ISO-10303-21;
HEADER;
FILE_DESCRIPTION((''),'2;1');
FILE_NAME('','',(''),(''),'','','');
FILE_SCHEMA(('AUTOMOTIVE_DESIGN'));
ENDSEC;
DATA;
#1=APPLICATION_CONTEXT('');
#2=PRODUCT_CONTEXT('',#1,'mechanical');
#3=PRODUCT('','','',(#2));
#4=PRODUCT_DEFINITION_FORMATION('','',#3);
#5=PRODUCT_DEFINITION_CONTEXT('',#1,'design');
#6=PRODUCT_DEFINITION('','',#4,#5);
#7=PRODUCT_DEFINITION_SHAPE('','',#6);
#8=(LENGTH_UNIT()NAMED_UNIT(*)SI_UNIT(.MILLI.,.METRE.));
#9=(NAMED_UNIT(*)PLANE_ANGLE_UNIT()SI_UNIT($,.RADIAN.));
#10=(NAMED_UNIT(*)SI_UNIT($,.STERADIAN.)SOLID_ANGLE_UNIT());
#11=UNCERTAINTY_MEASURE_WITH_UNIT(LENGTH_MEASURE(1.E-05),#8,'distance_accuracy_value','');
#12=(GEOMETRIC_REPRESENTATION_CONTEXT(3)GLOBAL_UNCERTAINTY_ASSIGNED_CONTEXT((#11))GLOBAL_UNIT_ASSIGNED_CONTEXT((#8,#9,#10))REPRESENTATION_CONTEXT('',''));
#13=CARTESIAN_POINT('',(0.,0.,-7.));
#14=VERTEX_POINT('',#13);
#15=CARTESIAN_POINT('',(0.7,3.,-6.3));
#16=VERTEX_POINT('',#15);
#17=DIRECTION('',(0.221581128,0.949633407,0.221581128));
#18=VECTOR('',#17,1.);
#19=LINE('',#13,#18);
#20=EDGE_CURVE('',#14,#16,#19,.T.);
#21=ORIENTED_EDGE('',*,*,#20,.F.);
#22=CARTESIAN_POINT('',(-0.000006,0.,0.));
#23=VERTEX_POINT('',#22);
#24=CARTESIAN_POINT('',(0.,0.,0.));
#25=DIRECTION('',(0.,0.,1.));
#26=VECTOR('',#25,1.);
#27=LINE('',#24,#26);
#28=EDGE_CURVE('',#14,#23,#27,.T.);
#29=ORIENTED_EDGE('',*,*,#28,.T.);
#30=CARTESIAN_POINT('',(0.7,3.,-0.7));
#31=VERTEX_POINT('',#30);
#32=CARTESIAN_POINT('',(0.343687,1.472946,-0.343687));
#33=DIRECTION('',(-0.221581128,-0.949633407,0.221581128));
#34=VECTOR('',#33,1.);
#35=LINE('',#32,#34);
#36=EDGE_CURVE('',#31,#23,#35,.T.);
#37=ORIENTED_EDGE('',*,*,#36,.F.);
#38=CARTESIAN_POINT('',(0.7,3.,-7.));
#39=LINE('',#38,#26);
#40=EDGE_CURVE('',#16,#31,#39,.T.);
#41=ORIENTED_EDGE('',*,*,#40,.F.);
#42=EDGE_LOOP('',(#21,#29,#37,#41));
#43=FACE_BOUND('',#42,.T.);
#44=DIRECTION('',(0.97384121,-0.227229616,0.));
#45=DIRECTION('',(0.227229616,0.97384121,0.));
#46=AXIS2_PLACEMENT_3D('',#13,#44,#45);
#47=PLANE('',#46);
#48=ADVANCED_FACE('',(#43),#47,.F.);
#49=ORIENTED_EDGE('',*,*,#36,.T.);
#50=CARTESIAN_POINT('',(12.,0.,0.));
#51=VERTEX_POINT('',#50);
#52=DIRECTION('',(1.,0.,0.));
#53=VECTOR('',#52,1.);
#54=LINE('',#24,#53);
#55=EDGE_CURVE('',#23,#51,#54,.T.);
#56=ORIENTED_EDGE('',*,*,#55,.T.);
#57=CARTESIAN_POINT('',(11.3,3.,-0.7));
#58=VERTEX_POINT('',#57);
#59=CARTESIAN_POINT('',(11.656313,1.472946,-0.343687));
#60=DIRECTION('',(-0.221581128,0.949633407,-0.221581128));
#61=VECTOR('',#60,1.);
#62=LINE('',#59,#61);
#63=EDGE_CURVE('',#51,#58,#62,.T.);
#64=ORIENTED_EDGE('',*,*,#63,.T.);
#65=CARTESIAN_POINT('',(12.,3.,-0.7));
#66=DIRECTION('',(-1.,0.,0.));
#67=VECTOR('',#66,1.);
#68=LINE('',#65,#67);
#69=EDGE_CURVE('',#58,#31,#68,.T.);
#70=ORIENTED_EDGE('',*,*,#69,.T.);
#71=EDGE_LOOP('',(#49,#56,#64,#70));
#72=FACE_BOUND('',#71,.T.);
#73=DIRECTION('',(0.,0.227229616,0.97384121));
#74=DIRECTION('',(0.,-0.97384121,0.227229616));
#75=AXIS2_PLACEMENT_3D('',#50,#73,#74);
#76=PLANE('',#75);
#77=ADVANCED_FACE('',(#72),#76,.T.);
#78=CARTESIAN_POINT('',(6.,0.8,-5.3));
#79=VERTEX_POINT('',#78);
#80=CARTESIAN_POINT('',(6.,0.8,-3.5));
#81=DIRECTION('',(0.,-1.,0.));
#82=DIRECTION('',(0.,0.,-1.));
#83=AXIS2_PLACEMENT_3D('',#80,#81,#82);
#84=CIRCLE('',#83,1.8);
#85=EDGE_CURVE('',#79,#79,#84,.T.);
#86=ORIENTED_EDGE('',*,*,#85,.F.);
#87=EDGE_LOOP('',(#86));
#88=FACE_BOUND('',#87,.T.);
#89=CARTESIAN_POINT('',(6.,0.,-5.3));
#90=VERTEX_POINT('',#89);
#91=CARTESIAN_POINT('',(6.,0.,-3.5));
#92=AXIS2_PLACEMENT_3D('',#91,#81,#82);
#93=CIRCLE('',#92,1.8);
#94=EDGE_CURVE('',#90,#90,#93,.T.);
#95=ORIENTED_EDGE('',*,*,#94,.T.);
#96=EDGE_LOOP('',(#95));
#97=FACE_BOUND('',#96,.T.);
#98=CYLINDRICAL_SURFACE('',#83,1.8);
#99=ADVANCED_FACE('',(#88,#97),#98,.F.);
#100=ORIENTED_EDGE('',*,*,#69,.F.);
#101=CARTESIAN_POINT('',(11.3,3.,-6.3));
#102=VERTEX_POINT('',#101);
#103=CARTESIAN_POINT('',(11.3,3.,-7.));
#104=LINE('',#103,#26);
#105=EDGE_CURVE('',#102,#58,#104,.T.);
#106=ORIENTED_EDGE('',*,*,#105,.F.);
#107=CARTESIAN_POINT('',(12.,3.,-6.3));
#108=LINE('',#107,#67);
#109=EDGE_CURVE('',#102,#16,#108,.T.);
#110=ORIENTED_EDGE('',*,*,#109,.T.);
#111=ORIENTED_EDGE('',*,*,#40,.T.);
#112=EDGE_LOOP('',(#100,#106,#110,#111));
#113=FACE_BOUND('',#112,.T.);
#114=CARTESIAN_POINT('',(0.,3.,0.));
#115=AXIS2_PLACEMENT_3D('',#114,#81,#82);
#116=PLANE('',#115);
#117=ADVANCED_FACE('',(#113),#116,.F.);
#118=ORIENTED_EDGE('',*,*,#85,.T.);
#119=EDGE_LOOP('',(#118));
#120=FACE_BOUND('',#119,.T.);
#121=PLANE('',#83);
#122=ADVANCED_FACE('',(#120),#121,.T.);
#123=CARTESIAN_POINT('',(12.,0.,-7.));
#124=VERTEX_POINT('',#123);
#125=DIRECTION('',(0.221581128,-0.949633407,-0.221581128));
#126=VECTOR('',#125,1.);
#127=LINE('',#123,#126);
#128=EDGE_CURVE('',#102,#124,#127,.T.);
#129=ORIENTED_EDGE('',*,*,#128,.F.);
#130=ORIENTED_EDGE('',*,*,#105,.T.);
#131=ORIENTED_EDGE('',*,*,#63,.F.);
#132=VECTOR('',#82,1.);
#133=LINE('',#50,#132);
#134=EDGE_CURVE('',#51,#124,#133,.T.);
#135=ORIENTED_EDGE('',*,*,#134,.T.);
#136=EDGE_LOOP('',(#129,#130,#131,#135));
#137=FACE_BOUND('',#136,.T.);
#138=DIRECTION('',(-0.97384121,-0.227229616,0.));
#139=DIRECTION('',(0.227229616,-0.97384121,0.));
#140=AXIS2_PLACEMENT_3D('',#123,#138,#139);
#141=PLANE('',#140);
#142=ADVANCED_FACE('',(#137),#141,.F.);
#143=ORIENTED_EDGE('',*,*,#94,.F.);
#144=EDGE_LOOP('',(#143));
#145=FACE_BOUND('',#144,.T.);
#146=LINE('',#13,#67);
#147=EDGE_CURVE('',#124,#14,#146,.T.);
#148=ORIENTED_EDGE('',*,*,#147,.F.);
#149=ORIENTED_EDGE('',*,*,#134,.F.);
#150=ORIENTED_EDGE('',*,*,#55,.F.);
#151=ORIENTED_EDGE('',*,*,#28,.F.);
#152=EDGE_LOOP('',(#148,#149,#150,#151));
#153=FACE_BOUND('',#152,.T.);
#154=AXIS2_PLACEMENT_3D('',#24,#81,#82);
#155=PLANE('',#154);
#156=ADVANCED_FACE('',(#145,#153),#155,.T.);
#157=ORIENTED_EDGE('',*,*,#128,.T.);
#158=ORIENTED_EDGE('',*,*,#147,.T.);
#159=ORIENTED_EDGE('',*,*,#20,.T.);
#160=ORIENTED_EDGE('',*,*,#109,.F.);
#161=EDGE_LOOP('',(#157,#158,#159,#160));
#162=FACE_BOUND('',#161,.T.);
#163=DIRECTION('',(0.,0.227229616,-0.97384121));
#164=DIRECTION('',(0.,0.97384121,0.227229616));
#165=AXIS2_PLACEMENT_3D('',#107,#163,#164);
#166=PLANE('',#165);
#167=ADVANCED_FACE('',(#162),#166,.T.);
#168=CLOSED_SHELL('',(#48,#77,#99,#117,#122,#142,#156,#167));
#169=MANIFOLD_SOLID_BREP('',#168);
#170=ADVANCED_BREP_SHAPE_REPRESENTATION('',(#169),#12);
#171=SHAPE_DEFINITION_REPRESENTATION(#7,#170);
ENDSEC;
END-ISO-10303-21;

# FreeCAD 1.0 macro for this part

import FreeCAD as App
import Part
import Sketcher
Q = App.Units.Quantity


def add_polygon(sketch, points):
    """Adds a closed chain of lines whose ends are joined by coincident constraints."""
    first, n = sketch.GeometryCount, len(points)
    for a, b in zip(points, points[1:] + points[:1]):
        sketch.addGeometry(Part.LineSegment(App.Vector(*a, 0), App.Vector(*b, 0)), False)
    for i in range(n):
        sketch.addConstraint(Sketcher.Constraint("Coincident", first + i, 2, first + (i + 1) % n, 1))

doc = App.newDocument("Part")
body = doc.addObject("PartDesign::Body", "Body")

sketch1 = body.newObject("Sketcher::SketchObject", "Sketch")
sketch1.AttachmentSupport = (doc.getObject("XZ_Plane"), [""])
sketch1.MapMode = "FlatFace"
add_polygon(sketch1, [(0, -7), (0, 0), (12, 0), (12, -7)])
sketch1.addConstraint([
    Sketcher.Constraint("Vertical", 0),
    Sketcher.Constraint("Horizontal", 1),
    Sketcher.Constraint("Vertical", 2),
    Sketcher.Constraint("Horizontal", 3),
    Sketcher.Constraint("Coincident", 0, 2, -1, 1),
    Sketcher.Constraint("DistanceX", 1, 1, 1, 2, Q("12 mm")),
    Sketcher.Constraint("DistanceY", 0, 1, 0, 2, Q("7 mm")),
])
pad1 = body.newObject("PartDesign::Pad", "Pad")
pad1.Profile = sketch1
pad1.Length = 3
pad1.Reversed = True

sketch2 = body.newObject("Sketcher::SketchObject", "Sketch001")
sketch2.AttachmentSupport = (doc.getObject("XY_Plane"), [""])
sketch2.MapMode = "FlatFace"
add_polygon(sketch2, [(0, 0), (0.7, 3), (0, 3)])
add_polygon(sketch2, [(11.3, 3), (12, 0), (12, 3)])
sketch2.addConstraint([
    Sketcher.Constraint("Horizontal", 1),
    Sketcher.Constraint("Vertical", 2),
    Sketcher.Constraint("Vertical", 4),
    Sketcher.Constraint("Horizontal", 5),
    Sketcher.Constraint("Coincident", 2, 2, -1, 1),
    Sketcher.Constraint("PointOnObject", 3, 2, -1),
    Sketcher.Constraint("Horizontal", 1, 2, 4, 2),
    Sketcher.Constraint("Equal", 1, 5),
    Sketcher.Constraint("DistanceY", 2, 2, 2, 1, Q("3 mm")),
    Sketcher.Constraint("DistanceX", 1, 2, 1, 1, Q("0.7 mm")),
    Sketcher.Constraint("DistanceX", -1, 1, 3, 2, Q("12 mm")),
])
pocket1 = body.newObject("PartDesign::Pocket", "Pocket")
pocket1.Profile = sketch2
pocket1.Length = 7

sketch3 = body.newObject("Sketcher::SketchObject", "Sketch002")
sketch3.AttachmentSupport = (doc.getObject("YZ_Plane"), [""])
sketch3.MapMode = "FlatFace"
add_polygon(sketch3, [(0, 0), (3, -0.7), (3, 0)])
add_polygon(sketch3, [(3, -7), (3, -6.3), (0, -7)])
sketch3.addConstraint([
    Sketcher.Constraint("Vertical", 1),
    Sketcher.Constraint("Horizontal", 2),
    Sketcher.Constraint("Vertical", 3),
    Sketcher.Constraint("Horizontal", 5),
    Sketcher.Constraint("Coincident", 2, 2, -1, 1),
    Sketcher.Constraint("PointOnObject", 4, 2, -2),
    Sketcher.Constraint("Vertical", 1, 2, 3, 2),
    Sketcher.Constraint("Equal", 1, 3),
    Sketcher.Constraint("DistanceX", 2, 2, 2, 1, Q("3 mm")),
    Sketcher.Constraint("DistanceY", 1, 1, 1, 2, Q("0.7 mm")),
    Sketcher.Constraint("DistanceY", 4, 2, -1, 1, Q("7 mm")),
])
pocket2 = body.newObject("PartDesign::Pocket", "Pocket001")
pocket2.Profile = sketch3
pocket2.Type = "ThroughAll"
pocket2.Midplane = True

sketch4 = body.newObject("Sketcher::SketchObject", "Sketch003")
sketch4.AttachmentSupport = (doc.getObject("XZ_Plane"), [""])
sketch4.MapMode = "FlatFace"
sketch4.addGeometry(Part.Circle(App.Vector(6, -3.5, 0), App.Vector(0, 0, 1), 1.8), False)
sketch4.addConstraint([
    Sketcher.Constraint("Diameter", 0, Q("3.6 mm")),
    Sketcher.Constraint("DistanceX", -1, 1, 0, 3, Q("6 mm")),
    Sketcher.Constraint("DistanceY", 0, 3, -1, 1, Q("3.5 mm")),
])
pocket3 = body.newObject("PartDesign::Pocket", "Pocket002")
pocket3.Profile = sketch4
pocket3.Length = 0.8

doc.recompute()
